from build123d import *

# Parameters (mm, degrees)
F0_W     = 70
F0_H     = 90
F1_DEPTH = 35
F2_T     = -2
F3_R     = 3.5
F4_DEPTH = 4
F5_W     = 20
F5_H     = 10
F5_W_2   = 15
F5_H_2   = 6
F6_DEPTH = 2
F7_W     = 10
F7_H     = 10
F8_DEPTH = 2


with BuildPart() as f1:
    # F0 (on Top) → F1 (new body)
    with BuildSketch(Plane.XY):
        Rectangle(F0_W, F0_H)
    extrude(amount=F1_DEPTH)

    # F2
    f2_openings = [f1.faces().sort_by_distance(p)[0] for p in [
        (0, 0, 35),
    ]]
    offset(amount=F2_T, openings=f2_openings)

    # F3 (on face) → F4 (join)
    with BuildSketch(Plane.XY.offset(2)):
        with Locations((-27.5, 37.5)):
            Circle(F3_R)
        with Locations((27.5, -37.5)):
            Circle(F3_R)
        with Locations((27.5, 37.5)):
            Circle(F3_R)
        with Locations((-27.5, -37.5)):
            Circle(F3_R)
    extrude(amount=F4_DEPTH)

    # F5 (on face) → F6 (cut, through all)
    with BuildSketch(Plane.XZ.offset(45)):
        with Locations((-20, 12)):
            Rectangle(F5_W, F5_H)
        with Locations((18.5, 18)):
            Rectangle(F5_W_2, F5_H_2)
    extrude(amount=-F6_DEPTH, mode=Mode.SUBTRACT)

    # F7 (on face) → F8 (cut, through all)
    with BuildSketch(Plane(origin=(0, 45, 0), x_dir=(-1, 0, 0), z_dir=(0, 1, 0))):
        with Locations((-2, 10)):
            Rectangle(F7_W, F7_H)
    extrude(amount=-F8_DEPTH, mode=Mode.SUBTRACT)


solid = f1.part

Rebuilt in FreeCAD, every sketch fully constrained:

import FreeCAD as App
import Part
import Sketcher

V = App.Vector


def faces_at(feature, points):
    """Names of the faces that lie closest to the given points."""
    faces = feature.Shape.Faces
    near = lambda p: min(range(len(faces)), key=lambda i: faces[i].distToShape(Part.Vertex(*p))[0])
    return sorted({f"Face{near(p) + 1}" for p in points})

doc = App.newDocument("Part")
body = doc.addObject("PartDesign::Body", "Body")

# Sketch on XY plane
sketch1 = body.newObject("Sketcher::SketchObject", "Sketch")
sketch1.AttachmentSupport = (doc.getObject("XY_Plane"), [""])
sketch1.MapMode = "FlatFace"
sketch1.addGeometry([
    Part.LineSegment(V(-35, 45, 0), V(-35, -45, 0)),
    Part.LineSegment(V(-35, -45, 0), V(35, -45, 0)),
    Part.LineSegment(V(35, -45, 0), V(35, 45, 0)),
    Part.LineSegment(V(35, 45, 0), V(-35, 45, 0)),
], False)
sketch1.addConstraint([
    Sketcher.Constraint("Coincident", 0, 2, 1, 1),
    Sketcher.Constraint("Coincident", 1, 2, 2, 1),
    Sketcher.Constraint("Coincident", 2, 2, 3, 1),
    Sketcher.Constraint("Coincident", 3, 2, 0, 1),
    Sketcher.Constraint("Vertical", 0),
    Sketcher.Constraint("Horizontal", 1),
    Sketcher.Constraint("Vertical", 2),
    Sketcher.Constraint("Horizontal", 3),
    Sketcher.Constraint("Symmetric", 0, 2, 2, 2, -1, 1),
    Sketcher.Constraint("DistanceX", 1, 1, 1, 2, 70.0),
    Sketcher.Constraint("DistanceY", 0, 2, 0, 1, 90.0),
])
pad1 = body.newObject("PartDesign::Pad", "Pad")
pad1.Profile = sketch1
pad1.Length = 35
doc.recompute()

thickness = body.newObject("PartDesign::Thickness", "Thickness")
thickness.Base = (pad1, faces_at(pad1, [(0, 0, 35)]))
thickness.Value = 2
thickness.Reversed = True
thickness.Join = "Arc"

# Sketch on XY plane
sketch2 = body.newObject("Sketcher::SketchObject", "Sketch001")
sketch2.AttachmentSupport = (doc.getObject("XY_Plane"), [""])
sketch2.MapMode = "FlatFace"
sketch2.AttachmentOffset = App.Placement(V(0, 0, 2), App.Rotation())
sketch2.addGeometry([
    Part.Circle(V(-27.5, 37.5, 0), V(0, 0, 1), 3.5),
    Part.Circle(V(27.5, -37.5, 0), V(0, 0, 1), 3.5),
    Part.Circle(V(27.5, 37.5, 0), V(0, 0, 1), 3.5),
    Part.Circle(V(-27.5, -37.5, 0), V(0, 0, 1), 3.5),
], False)
sketch2.addConstraint([
    Sketcher.Constraint("Equal", 0, 1),
    Sketcher.Constraint("Equal", 1, 2),
    Sketcher.Constraint("Equal", 2, 3),
    Sketcher.Constraint("Symmetric", 0, 3, 1, 3, -1, 1),
    Sketcher.Constraint("Symmetric", 2, 3, 3, 3, -1, 1),
    Sketcher.Constraint("Symmetric", 0, 3, 2, 3, -2),
    Sketcher.Constraint("Diameter", 0, 7.0),
    Sketcher.Constraint("DistanceX", 0, 3, 1, 3, 55.0),
    Sketcher.Constraint("DistanceY", 1, 3, 0, 3, 75.0),
])
pad2 = body.newObject("PartDesign::Pad", "Pad001")
pad2.Profile = sketch2
pad2.Length = 4

# Sketch on XZ plane
sketch3 = body.newObject("Sketcher::SketchObject", "Sketch002")
sketch3.AttachmentSupport = (doc.getObject("XZ_Plane"), [""])
sketch3.MapMode = "FlatFace"
sketch3.AttachmentOffset = App.Placement(V(0, 0, 45), App.Rotation())
sketch3.addGeometry([
    Part.LineSegment(V(-30, 17, 0), V(-30, 7, 0)),  # 0
    Part.LineSegment(V(-30, 7, 0), V(-10, 7, 0)),  # 1
    Part.LineSegment(V(-10, 7, 0), V(-10, 17, 0)),  # 2
    Part.LineSegment(V(-10, 17, 0), V(-30, 17, 0)),  # 3
    Part.LineSegment(V(11, 21, 0), V(11, 15, 0)),  # 4
    Part.LineSegment(V(11, 15, 0), V(26, 15, 0)),  # 5
    Part.LineSegment(V(26, 15, 0), V(26, 21, 0)),  # 6
    Part.LineSegment(V(26, 21, 0), V(11, 21, 0)),  # 7
], False)
sketch3.addConstraint([
    Sketcher.Constraint("Coincident", 0, 2, 1, 1),
    Sketcher.Constraint("Coincident", 1, 2, 2, 1),
    Sketcher.Constraint("Coincident", 2, 2, 3, 1),
    Sketcher.Constraint("Coincident", 3, 2, 0, 1),
    Sketcher.Constraint("Coincident", 4, 2, 5, 1),
    Sketcher.Constraint("Coincident", 5, 2, 6, 1),
    Sketcher.Constraint("Coincident", 6, 2, 7, 1),
    Sketcher.Constraint("Coincident", 7, 2, 4, 1),
    Sketcher.Constraint("Vertical", 0),
    Sketcher.Constraint("Horizontal", 1),
    Sketcher.Constraint("Vertical", 2),
    Sketcher.Constraint("Horizontal", 3),
    Sketcher.Constraint("Vertical", 4),
    Sketcher.Constraint("Horizontal", 5),
    Sketcher.Constraint("Vertical", 6),
    Sketcher.Constraint("Horizontal", 7),
    Sketcher.Constraint("DistanceX", 1, 1, 1, 2, 20.0),
    Sketcher.Constraint("DistanceX", 5, 1, 5, 2, 15.0),
    Sketcher.Constraint("DistanceY", 0, 2, 0, 1, 10.0),
    Sketcher.Constraint("DistanceY", 4, 2, 4, 1, 6.0),
    Sketcher.Constraint("DistanceX", 0, 2, -1, 1, 30.0),
    Sketcher.Constraint("DistanceY", -1, 1, 0, 2, 7.0),
    Sketcher.Constraint("DistanceX", -1, 1, 4, 2, 11.0),
    Sketcher.Constraint("DistanceY", -1, 1, 4, 2, 15.0),
])
pocket1 = body.newObject("PartDesign::Pocket", "Pocket")
pocket1.Profile = sketch3
pocket1.Length = 2

# Sketch on XZ plane
sketch4 = body.newObject("Sketcher::SketchObject", "Sketch003")
sketch4.AttachmentSupport = (doc.getObject("XZ_Plane"), [""])
sketch4.MapMode = "FlatFace"
sketch4.AttachmentOffset = App.Placement(V(0, 0, -45), App.Rotation())
sketch4.addGeometry([
    Part.LineSegment(V(7, 15, 0), V(7, 5, 0)),
    Part.LineSegment(V(7, 5, 0), V(-3, 5, 0)),
    Part.LineSegment(V(-3, 5, 0), V(-3, 15, 0)),
    Part.LineSegment(V(-3, 15, 0), V(7, 15, 0)),
], False)
sketch4.addConstraint([
    Sketcher.Constraint("Coincident", 0, 2, 1, 1),
    Sketcher.Constraint("Coincident", 1, 2, 2, 1),
    Sketcher.Constraint("Coincident", 2, 2, 3, 1),
    Sketcher.Constraint("Coincident", 3, 2, 0, 1),
    Sketcher.Constraint("Vertical", 0),
    Sketcher.Constraint("Horizontal", 1),
    Sketcher.Constraint("Vertical", 2),
    Sketcher.Constraint("Horizontal", 3),
    Sketcher.Constraint("Equal", 3, 0),
    Sketcher.Constraint("DistanceX", 1, 2, 1, 1, 10.0),
    Sketcher.Constraint("DistanceX", -1, 1, 0, 2, 7.0),
    Sketcher.Constraint("DistanceY", -1, 1, 0, 2, 5.0),
])
pocket2 = body.newObject("PartDesign::Pocket", "Pocket001")
pocket2.Profile = sketch4
pocket2.Length = 2
pocket2.Reversed = True

doc.recompute()
